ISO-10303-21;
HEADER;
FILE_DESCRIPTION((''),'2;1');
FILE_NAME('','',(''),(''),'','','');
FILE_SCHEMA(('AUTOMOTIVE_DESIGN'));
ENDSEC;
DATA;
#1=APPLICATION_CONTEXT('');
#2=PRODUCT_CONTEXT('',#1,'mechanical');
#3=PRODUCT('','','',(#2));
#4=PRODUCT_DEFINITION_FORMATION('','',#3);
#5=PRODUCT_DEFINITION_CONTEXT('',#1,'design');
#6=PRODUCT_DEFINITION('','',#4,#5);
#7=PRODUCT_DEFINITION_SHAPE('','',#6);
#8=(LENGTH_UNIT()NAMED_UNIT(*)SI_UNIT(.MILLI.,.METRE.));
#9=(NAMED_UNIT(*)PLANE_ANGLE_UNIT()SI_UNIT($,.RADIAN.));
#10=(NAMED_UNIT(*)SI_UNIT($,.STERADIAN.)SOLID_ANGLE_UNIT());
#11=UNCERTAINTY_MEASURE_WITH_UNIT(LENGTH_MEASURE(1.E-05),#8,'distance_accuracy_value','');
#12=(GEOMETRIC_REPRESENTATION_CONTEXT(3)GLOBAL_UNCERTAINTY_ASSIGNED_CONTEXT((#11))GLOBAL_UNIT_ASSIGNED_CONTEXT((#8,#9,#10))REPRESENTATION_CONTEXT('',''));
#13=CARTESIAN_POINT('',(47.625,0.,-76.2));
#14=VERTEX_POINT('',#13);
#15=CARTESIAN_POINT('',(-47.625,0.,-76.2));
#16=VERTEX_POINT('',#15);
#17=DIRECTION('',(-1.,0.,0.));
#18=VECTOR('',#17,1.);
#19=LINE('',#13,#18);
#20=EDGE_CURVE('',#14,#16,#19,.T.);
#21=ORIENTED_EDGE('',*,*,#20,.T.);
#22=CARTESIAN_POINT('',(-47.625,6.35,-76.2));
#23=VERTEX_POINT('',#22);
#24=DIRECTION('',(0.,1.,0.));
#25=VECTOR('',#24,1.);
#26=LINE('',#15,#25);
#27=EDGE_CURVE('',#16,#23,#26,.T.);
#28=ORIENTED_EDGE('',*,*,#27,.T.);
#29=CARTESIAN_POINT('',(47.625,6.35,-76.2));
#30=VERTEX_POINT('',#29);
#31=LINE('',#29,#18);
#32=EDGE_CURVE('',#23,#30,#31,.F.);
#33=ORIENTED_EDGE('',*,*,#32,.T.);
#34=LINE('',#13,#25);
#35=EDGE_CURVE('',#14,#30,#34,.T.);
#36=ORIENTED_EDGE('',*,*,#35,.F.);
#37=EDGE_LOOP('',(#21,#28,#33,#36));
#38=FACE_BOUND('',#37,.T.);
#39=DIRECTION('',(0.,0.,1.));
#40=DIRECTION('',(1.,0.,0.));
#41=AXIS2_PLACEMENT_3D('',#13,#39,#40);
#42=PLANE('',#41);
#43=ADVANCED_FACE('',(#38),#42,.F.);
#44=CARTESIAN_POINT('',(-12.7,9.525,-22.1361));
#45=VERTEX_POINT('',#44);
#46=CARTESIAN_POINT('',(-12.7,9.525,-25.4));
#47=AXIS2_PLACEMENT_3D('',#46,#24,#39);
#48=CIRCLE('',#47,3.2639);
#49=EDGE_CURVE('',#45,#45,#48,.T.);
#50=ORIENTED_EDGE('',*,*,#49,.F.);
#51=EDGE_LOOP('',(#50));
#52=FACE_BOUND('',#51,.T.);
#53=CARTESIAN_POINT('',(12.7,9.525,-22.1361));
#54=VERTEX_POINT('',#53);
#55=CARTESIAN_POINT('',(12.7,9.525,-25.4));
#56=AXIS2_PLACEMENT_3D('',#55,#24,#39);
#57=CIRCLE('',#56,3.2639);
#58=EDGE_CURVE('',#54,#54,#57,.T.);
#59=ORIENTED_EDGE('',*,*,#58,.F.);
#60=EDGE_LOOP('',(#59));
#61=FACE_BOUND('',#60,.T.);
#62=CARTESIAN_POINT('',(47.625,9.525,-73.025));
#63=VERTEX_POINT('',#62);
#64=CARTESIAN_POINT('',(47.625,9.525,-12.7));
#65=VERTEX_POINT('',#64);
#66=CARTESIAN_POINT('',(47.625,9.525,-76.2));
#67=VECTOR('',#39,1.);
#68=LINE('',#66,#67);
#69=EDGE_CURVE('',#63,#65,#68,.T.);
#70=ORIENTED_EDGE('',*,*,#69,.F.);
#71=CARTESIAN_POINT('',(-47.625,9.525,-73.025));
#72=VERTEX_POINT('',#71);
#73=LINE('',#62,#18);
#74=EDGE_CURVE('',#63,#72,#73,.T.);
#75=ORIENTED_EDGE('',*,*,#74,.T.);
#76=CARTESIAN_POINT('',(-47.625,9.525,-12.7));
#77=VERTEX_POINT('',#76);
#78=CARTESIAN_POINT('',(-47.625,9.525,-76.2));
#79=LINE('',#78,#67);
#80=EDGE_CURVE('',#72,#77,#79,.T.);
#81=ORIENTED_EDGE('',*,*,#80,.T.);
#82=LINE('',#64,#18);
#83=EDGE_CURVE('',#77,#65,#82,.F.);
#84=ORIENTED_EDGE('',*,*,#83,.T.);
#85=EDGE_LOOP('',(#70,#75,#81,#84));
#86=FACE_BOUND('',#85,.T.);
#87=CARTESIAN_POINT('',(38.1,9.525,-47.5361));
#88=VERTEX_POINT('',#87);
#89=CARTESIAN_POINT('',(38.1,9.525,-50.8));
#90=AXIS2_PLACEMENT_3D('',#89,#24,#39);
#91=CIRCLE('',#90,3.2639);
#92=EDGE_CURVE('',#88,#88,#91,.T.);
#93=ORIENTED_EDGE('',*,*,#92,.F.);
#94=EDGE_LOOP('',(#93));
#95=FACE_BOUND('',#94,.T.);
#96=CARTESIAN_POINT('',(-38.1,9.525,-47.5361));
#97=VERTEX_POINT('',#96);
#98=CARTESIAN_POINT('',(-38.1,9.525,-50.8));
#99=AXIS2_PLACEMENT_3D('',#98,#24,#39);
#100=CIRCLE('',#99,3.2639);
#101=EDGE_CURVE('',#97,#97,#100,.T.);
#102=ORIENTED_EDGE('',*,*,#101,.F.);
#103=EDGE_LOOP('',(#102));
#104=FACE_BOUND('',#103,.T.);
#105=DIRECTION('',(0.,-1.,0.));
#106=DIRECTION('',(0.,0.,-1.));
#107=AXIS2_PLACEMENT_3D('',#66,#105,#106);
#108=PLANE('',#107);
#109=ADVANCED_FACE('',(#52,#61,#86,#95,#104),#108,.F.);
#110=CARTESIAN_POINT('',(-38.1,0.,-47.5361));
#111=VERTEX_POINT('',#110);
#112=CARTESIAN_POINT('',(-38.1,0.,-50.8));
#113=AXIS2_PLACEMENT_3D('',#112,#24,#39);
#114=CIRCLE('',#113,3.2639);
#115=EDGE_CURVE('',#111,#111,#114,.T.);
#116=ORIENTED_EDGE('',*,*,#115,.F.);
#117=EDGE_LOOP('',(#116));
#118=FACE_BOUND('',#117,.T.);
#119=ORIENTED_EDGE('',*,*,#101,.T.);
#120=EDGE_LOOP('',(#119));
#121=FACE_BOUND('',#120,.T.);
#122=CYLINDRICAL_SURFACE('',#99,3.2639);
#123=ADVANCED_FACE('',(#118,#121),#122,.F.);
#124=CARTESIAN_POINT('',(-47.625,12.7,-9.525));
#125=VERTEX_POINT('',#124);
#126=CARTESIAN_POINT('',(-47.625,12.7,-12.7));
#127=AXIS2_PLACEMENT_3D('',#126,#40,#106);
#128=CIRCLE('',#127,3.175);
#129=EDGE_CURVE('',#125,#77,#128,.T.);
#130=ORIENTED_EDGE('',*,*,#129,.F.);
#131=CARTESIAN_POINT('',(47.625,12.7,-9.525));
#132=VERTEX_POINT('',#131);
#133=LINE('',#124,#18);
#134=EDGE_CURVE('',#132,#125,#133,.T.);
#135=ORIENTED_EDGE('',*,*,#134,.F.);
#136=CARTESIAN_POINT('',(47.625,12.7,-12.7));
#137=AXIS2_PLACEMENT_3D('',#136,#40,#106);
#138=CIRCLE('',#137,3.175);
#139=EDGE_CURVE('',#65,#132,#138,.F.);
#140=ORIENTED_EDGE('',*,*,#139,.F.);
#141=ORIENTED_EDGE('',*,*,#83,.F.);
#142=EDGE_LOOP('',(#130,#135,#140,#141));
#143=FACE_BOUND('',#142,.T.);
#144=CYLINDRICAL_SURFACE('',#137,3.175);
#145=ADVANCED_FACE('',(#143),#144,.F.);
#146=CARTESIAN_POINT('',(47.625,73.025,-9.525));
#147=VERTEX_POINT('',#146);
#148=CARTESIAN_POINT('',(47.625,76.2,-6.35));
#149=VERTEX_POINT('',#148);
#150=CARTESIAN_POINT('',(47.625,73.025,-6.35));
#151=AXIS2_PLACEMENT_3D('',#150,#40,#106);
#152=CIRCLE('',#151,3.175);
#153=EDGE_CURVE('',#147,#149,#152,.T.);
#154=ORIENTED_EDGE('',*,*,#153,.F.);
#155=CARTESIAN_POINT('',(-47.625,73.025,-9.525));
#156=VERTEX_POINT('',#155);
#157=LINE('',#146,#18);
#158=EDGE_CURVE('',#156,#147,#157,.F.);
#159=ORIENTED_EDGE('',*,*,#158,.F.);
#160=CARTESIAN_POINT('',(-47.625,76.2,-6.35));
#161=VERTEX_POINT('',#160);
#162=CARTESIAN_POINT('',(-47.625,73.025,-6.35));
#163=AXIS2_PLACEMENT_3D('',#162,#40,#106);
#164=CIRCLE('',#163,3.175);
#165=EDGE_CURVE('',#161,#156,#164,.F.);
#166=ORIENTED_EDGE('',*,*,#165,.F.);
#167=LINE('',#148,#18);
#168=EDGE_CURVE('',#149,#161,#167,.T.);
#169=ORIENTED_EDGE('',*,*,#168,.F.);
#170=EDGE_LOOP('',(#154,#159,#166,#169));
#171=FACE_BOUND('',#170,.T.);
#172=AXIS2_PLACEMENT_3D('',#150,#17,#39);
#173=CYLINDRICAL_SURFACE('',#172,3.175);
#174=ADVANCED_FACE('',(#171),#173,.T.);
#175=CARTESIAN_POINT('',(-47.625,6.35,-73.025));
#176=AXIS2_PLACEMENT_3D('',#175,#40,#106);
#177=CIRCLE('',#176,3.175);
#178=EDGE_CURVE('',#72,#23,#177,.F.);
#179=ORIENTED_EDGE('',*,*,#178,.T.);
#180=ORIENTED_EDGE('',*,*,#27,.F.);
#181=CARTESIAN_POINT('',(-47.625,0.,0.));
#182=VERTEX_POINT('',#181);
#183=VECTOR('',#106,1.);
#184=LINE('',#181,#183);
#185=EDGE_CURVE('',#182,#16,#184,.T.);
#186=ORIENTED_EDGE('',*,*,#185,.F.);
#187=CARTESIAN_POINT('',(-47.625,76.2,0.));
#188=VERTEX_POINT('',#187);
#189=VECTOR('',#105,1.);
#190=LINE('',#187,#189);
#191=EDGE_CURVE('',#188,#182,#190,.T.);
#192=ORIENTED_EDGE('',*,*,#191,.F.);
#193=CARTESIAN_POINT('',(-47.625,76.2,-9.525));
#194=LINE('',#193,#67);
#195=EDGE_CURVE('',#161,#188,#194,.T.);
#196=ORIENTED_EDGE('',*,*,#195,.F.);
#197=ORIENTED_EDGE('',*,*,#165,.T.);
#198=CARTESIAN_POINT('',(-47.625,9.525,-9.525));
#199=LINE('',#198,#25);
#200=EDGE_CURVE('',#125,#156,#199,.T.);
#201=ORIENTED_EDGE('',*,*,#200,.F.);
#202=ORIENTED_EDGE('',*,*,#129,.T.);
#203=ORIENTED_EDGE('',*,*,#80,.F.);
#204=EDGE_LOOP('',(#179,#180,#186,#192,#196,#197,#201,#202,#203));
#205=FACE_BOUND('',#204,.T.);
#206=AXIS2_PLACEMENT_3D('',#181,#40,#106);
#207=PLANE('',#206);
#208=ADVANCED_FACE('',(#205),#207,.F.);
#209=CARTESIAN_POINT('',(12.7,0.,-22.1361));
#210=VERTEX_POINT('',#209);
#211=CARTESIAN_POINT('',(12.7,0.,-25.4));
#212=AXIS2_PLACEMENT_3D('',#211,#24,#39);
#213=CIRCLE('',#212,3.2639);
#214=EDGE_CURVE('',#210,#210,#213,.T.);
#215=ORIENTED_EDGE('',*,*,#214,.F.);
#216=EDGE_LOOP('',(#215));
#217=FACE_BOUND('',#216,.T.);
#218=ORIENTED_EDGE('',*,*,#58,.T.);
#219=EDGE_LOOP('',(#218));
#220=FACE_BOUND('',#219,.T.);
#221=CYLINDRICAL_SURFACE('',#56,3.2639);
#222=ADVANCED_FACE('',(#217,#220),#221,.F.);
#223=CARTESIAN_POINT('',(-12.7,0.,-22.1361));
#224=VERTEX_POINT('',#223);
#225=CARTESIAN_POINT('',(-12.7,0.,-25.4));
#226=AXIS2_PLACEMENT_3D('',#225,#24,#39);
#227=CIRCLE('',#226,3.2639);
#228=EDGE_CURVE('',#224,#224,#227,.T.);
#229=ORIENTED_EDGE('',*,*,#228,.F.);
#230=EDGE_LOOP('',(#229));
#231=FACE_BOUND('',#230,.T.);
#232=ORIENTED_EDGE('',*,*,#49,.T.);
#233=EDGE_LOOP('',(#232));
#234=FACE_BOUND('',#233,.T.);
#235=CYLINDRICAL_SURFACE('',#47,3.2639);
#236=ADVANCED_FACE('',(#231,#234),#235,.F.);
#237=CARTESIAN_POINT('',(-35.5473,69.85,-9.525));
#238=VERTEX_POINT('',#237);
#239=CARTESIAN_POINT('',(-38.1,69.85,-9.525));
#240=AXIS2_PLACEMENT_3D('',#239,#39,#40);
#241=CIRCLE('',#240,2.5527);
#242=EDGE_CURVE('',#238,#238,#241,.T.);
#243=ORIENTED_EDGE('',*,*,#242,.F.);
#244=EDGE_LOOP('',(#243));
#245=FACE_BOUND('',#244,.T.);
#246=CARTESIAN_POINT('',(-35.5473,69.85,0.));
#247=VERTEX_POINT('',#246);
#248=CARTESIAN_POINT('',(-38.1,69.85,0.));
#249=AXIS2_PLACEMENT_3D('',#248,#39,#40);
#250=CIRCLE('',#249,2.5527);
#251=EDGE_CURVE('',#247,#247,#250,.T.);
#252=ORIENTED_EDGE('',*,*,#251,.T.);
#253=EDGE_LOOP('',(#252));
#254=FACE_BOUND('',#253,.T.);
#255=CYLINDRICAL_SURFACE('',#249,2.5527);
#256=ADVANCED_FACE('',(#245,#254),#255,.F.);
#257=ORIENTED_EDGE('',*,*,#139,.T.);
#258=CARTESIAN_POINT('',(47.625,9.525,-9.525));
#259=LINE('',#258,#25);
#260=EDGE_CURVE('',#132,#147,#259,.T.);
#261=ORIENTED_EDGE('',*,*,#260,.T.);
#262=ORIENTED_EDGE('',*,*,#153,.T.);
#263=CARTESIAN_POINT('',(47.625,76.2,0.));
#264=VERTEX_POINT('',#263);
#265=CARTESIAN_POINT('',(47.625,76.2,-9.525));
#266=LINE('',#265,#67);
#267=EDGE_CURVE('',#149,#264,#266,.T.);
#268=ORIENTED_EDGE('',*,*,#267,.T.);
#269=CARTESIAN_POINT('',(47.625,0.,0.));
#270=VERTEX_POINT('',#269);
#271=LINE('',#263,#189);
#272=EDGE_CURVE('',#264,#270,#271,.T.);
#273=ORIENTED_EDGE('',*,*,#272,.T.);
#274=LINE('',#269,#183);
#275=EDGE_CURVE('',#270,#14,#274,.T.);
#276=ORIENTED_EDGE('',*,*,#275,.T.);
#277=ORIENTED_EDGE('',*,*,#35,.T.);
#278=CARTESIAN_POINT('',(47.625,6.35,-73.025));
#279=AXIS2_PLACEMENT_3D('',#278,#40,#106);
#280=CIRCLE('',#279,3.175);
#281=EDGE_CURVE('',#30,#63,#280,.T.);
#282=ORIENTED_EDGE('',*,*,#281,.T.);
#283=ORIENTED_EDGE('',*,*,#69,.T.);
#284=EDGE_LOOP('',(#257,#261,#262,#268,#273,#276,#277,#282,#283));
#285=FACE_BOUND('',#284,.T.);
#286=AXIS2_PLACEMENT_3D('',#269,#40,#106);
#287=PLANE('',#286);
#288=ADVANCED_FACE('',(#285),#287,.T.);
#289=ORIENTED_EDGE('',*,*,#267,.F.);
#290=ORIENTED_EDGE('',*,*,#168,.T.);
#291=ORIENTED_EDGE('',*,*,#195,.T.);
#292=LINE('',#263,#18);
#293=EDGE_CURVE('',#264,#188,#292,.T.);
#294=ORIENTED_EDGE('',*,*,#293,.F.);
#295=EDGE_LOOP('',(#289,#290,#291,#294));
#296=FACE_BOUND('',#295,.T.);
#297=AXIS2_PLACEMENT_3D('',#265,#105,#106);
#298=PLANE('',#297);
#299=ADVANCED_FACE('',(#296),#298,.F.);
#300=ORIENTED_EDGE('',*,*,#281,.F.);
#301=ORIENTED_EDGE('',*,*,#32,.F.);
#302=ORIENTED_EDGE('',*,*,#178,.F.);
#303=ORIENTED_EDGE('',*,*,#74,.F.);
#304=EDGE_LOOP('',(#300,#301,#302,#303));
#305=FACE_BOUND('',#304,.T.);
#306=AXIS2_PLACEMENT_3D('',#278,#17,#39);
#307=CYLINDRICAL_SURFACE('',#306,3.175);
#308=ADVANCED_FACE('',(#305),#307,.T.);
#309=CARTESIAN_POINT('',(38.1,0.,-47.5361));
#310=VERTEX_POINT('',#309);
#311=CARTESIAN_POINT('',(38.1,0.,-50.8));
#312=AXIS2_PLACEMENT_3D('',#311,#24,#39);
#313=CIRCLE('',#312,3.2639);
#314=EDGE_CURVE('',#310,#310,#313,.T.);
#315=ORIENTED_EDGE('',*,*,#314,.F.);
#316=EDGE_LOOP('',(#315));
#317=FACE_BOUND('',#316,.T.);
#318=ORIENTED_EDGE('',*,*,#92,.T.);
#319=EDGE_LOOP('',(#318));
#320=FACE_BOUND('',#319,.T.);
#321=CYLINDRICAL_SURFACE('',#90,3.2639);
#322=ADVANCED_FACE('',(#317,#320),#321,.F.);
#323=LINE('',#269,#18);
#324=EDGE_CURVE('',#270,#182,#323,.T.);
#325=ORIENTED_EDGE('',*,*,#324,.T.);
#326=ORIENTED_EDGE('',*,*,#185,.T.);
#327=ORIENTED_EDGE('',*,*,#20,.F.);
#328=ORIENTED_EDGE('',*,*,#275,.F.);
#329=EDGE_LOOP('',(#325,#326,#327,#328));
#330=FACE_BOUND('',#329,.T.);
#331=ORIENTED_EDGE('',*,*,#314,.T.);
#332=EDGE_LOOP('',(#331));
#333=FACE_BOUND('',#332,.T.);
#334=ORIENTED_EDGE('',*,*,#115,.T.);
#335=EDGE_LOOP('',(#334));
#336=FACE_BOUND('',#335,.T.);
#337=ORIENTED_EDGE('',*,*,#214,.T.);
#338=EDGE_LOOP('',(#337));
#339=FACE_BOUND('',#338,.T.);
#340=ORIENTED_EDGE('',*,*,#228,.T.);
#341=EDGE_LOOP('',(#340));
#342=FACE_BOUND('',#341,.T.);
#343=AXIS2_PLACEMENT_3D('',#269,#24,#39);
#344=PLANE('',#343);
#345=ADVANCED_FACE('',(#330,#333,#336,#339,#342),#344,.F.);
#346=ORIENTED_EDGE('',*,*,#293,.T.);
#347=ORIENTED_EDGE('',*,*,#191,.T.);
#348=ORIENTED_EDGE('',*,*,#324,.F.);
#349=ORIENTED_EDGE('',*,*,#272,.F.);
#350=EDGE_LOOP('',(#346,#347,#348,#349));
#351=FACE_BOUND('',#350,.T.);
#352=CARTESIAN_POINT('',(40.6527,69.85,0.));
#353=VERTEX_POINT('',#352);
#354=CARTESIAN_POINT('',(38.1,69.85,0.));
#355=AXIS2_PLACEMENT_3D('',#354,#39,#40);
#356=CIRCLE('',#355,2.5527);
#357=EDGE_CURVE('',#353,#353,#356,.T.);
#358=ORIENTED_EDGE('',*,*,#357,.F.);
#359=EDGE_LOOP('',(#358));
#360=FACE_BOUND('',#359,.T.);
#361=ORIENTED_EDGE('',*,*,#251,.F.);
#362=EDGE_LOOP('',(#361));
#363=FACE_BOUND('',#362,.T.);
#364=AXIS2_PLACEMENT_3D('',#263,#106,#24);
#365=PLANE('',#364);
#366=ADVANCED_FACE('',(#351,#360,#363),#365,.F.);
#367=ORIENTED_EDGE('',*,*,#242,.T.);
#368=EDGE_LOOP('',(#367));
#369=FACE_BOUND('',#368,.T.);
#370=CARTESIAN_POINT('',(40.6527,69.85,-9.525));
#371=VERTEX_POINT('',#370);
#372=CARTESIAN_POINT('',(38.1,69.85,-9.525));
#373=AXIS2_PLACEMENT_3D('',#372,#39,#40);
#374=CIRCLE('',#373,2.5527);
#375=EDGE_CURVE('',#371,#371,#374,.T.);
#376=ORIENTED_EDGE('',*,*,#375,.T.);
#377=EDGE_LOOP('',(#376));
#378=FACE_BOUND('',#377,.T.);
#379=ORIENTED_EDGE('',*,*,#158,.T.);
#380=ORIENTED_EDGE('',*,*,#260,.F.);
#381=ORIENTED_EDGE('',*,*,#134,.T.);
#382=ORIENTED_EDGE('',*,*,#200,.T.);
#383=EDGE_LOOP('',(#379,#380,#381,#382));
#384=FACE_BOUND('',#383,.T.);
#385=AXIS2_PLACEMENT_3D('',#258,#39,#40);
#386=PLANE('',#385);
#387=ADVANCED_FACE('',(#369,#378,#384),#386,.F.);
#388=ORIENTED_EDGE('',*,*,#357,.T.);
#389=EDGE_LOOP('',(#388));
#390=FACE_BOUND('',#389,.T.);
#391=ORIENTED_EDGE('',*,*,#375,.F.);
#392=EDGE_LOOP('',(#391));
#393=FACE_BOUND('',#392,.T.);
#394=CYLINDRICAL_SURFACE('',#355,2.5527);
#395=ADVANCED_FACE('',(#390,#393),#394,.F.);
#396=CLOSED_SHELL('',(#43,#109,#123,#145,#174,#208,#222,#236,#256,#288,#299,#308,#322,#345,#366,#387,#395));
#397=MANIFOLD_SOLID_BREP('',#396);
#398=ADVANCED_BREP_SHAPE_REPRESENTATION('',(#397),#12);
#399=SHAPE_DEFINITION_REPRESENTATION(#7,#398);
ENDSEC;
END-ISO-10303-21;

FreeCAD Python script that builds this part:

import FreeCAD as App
import Part
import Sketcher

V = App.Vector
Q = App.Units.Quantity


def edges_at(feature, points):
    """Names of the edges that pass closest to the given points."""
    edges = feature.Shape.Edges
    near = lambda p: min(range(len(edges)), key=lambda i: edges[i].distToShape(Part.Vertex(*p))[0])
    return sorted({f"Edge{near(p) + 1}" for p in points})

doc = App.newDocument("Part")
body = doc.addObject("PartDesign::Body", "Body")

# Sketch on YZ plane
sketch1 = body.newObject("Sketcher::SketchObject", "Sketch")
sketch1.AttachmentSupport = (doc.getObject("YZ_Plane"), [""])
sketch1.MapMode = "FlatFace"
sketch1.addGeometry([
    Part.LineSegment(V(76, 0, 0), V(0, 0, 0)),  # 0
    Part.LineSegment(V(0, 0, 0), V(0, -76, 0)),  # 1
    Part.LineSegment(V(0, -76, 0), V(10, -76, 0)),  # 2
    Part.LineSegment(V(10, -76, 0), V(10, -10, 0)),  # 3
    Part.LineSegment(V(10, -10, 0), V(76, -10, 0)),  # 4
    Part.LineSegment(V(76, -10, 0), V(76, 0, 0)),  # 5
], False)
sketch1.addConstraint([
    Sketcher.Constraint("Coincident", 0, 2, 1, 1),
    Sketcher.Constraint("Coincident", 1, 2, 2, 1),
    Sketcher.Constraint("Coincident", 2, 2, 3, 1),
    Sketcher.Constraint("Coincident", 3, 2, 4, 1),
    Sketcher.Constraint("Coincident", 4, 2, 5, 1),
    Sketcher.Constraint("Coincident", 5, 2, 0, 1),
    Sketcher.Constraint("Horizontal", 0),
    Sketcher.Constraint("Vertical", 1),
    Sketcher.Constraint("Horizontal", 2),
    Sketcher.Constraint("Vertical", 3),
    Sketcher.Constraint("Horizontal", 4),
    Sketcher.Constraint("Vertical", 5),
    Sketcher.Constraint("Coincident", 0, 2, -1, 1),
    Sketcher.Constraint("Equal", 0, 1),
    Sketcher.Constraint("Equal", 4, 3),
    Sketcher.Constraint("DistanceX", 0, 2, 0, 1, Q("3 in")),
    Sketcher.Constraint("DistanceX", 2, 1, 2, 2, Q("0.375 in")),
])
pad1 = body.newObject("PartDesign::Pad", "Pad")
pad1.Profile = sketch1
pad1.Length = Q("3.75 in")
pad1.Midplane = True
doc.recompute()

fillet = body.newObject("PartDesign::Fillet", "Fillet")
fillet.Base = (pad1, edges_at(pad1, [(0, 76.2, -9.525), (0, 9.525, -9.525), (0, 9.525, -76.2)]))
fillet.Radius = Q("0.125 in")

# Sketch on XY plane
sketch2 = body.newObject("Sketcher::SketchObject", "Sketch001")
sketch2.AttachmentSupport = (doc.getObject("XY_Plane"), [""])
sketch2.MapMode = "FlatFace"
sketch2.addGeometry([
    Part.Circle(V(-38.1, 69.8, 0), V(0, 0, 1), 2.6),
    Part.Circle(V(38.1, 69.8, 0), V(0, 0, 1), 2.6),
], False)
sketch2.addConstraint([
    Sketcher.Constraint("Equal", 0, 1),
    Sketcher.Constraint("Symmetric", 0, 3, 1, 3, -2),
    Sketcher.Constraint("Diameter", 0, Q("0.201 in")),
    Sketcher.Constraint("DistanceX", 0, 3, 1, 3, Q("3 in")),
    Sketcher.Constraint("DistanceY", -1, 1, 0, 3, Q("2.75 in")),
])
doc.recompute()
hole = body.newObject("PartDesign::Hole", "Hole")
hole.Profile = sketch2
hole.ThreadType = "None"
hole.Diameter = Q("0.201 in")
hole.DepthType = "ThroughAll"

# Sketch on XZ plane
sketch3 = body.newObject("Sketcher::SketchObject", "Sketch002")
sketch3.AttachmentSupport = (doc.getObject("XZ_Plane"), [""])
sketch3.MapMode = "FlatFace"
sketch3.AttachmentOffset = App.Placement(V(0, 0, -0.375 * 25.4), App.Rotation())
sketch3.addGeometry([
    Part.Circle(V(-38.1, -50.8, 0), V(0, 0, 1), 3.3),
    Part.Circle(V(38.1, -50.8, 0), V(0, 0, 1), 3.3),
    Part.Circle(V(-12.7, -25.4, 0), V(0, 0, 1), 3.3),
    Part.Circle(V(12.7, -25.4, 0), V(0, 0, 1), 3.3),
], False)
sketch3.addConstraint([
    Sketcher.Constraint("Equal", 0, 1),
    Sketcher.Constraint("Equal", 1, 2),
    Sketcher.Constraint("Equal", 2, 3),
    Sketcher.Constraint("Symmetric", 0, 3, 1, 3, -2),
    Sketcher.Constraint("Symmetric", 2, 3, 3, 3, -2),
    Sketcher.Constraint("Diameter", 0, Q("0.257 in")),
    Sketcher.Constraint("DistanceY", 0, 3, -1, 1, Q("2 in")),
    Sketcher.Constraint("DistanceY", 2, 3, -1, 1, Q("1 in")),
    Sketcher.Constraint("DistanceX", 0, 3, 1, 3, Q("3 in")),
    Sketcher.Constraint("DistanceX", 0, 3, 2, 3, Q("1 in")),
])
doc.recompute()
hole2 = body.newObject("PartDesign::Hole", "Hole001")
hole2.Profile = sketch3
hole2.ThreadType = "None"
hole2.Diameter = Q("0.257 in")
hole2.DepthType = "ThroughAll"
hole2.Reversed = True

doc.recompute()
